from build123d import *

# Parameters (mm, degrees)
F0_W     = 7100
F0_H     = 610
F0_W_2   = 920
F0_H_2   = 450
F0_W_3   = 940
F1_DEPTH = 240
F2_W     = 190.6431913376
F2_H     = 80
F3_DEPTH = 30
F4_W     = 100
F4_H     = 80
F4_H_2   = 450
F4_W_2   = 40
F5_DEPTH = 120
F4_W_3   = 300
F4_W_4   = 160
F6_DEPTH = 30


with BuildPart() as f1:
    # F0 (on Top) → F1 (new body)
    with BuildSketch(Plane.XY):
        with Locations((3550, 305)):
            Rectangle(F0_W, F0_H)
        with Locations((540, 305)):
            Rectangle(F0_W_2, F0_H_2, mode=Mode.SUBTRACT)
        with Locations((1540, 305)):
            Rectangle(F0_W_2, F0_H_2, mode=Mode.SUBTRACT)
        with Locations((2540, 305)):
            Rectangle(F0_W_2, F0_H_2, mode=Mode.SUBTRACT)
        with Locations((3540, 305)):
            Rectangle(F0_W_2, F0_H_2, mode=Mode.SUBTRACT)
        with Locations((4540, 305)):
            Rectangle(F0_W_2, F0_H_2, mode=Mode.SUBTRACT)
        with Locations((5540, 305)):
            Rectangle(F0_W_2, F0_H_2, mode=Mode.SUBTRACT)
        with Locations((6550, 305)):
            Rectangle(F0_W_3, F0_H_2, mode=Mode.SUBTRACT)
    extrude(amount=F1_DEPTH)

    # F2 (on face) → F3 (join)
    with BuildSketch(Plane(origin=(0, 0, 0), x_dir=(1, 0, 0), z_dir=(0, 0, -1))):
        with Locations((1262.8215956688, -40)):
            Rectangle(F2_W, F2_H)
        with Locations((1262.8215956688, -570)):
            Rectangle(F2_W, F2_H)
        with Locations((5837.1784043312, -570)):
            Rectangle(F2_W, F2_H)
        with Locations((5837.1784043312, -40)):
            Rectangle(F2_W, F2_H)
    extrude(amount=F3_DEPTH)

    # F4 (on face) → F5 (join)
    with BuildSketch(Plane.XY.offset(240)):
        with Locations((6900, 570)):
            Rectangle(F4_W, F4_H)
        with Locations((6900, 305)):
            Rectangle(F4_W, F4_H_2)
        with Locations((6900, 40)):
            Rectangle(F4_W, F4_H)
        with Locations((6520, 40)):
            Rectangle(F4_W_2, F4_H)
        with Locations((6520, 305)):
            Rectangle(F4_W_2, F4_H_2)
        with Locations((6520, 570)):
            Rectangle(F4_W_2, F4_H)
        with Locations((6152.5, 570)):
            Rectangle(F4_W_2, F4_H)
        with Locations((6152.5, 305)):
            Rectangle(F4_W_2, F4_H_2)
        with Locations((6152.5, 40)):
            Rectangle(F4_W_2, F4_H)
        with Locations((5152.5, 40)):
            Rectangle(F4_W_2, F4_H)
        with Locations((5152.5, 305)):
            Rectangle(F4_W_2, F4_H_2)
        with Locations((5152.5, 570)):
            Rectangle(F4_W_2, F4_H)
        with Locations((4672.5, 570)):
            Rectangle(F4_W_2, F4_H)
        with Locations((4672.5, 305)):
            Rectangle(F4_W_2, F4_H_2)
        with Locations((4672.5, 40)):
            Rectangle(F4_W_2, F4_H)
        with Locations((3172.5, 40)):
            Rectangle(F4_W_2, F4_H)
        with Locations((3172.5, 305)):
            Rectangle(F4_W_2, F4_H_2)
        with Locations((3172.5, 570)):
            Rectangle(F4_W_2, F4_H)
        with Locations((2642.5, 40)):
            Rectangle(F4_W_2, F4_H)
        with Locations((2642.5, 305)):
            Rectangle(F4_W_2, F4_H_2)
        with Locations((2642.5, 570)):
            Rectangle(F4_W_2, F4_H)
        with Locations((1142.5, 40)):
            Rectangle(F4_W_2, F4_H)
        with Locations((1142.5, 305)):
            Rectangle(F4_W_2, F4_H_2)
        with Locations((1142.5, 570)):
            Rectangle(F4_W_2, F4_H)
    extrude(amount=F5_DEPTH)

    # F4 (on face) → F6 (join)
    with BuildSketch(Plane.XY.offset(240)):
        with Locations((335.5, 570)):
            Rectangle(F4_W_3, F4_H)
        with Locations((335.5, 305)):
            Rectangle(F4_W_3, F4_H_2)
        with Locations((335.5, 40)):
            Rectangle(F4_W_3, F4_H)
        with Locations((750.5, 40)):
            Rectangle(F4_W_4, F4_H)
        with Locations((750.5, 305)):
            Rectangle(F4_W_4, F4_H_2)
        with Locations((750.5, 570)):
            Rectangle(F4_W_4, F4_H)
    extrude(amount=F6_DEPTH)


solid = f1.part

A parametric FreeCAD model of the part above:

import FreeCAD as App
import Part
import Sketcher
from FreeCAD import Vector

doc = App.newDocument("Part")
body = doc.addObject("PartDesign::Body", "Body")

# Sketch on XY plane
sketch1 = body.newObject("Sketcher::SketchObject", "Sketch")
sketch1.AttachmentSupport = (doc.getObject("XY_Plane"), [""])
sketch1.MapMode = "FlatFace"
sketch1.addGeometry([
    Part.LineSegment(Vector(0, 610, 0), Vector(0, 0, 0)),  # 0
    Part.LineSegment(Vector(0, 0, 0), Vector(7100, 0, 0)),  # 1
    Part.LineSegment(Vector(7100, 0, 0), Vector(7100, 610, 0)),  # 2
    Part.LineSegment(Vector(7100, 610, 0), Vector(0, 610, 0)),  # 3
    Part.LineSegment(Vector(1000, 80, 0), Vector(80, 80, 0)),  # 4
    Part.LineSegment(Vector(80, 80, 0), Vector(80, 530, 0)),  # 5
    Part.LineSegment(Vector(80, 530, 0), Vector(1000, 530, 0)),  # 6
    Part.LineSegment(Vector(1000, 530, 0), Vector(1000, 80, 0)),  # 7
    Part.LineSegment(Vector(2000, 80, 0), Vector(1080, 80, 0)),  # 8
    Part.LineSegment(Vector(1080, 80, 0), Vector(1080, 530, 0)),  # 9
    Part.LineSegment(Vector(1080, 530, 0), Vector(2000, 530, 0)),  # 10
    Part.LineSegment(Vector(2000, 530, 0), Vector(2000, 80, 0)),  # 11
    Part.LineSegment(Vector(3000, 80, 0), Vector(2080, 80, 0)),  # 12
    Part.LineSegment(Vector(2080, 80, 0), Vector(2080, 530, 0)),  # 13
    Part.LineSegment(Vector(2080, 530, 0), Vector(3000, 530, 0)),  # 14
    Part.LineSegment(Vector(3000, 530, 0), Vector(3000, 80, 0)),  # 15
    Part.LineSegment(Vector(4000, 80, 0), Vector(3080, 80, 0)),  # 16
    Part.LineSegment(Vector(3080, 80, 0), Vector(3080, 530, 0)),  # 17
    Part.LineSegment(Vector(3080, 530, 0), Vector(4000, 530, 0)),  # 18
    Part.LineSegment(Vector(4000, 530, 0), Vector(4000, 80, 0)),  # 19
    Part.LineSegment(Vector(5000, 80, 0), Vector(4080, 80, 0)),  # 20
    Part.LineSegment(Vector(4080, 80, 0), Vector(4080, 530, 0)),  # 21
    Part.LineSegment(Vector(4080, 530, 0), Vector(5000, 530, 0)),  # 22
    Part.LineSegment(Vector(5000, 530, 0), Vector(5000, 80, 0)),  # 23
    Part.LineSegment(Vector(6000, 80, 0), Vector(5080, 80, 0)),  # 24
    Part.LineSegment(Vector(5080, 80, 0), Vector(5080, 530, 0)),  # 25
    Part.LineSegment(Vector(5080, 530, 0), Vector(6000, 530, 0)),  # 26
    Part.LineSegment(Vector(6000, 530, 0), Vector(6000, 80, 0)),  # 27
    Part.LineSegment(Vector(7020, 80, 0), Vector(6080, 80, 0)),  # 28
    Part.LineSegment(Vector(6080, 80, 0), Vector(6080, 530, 0)),  # 29
    Part.LineSegment(Vector(6080, 530, 0), Vector(7020, 530, 0)),  # 30
    Part.LineSegment(Vector(7020, 530, 0), Vector(7020, 80, 0)),  # 31
], False)
sketch1.addConstraint([
    Sketcher.Constraint("Coincident", 0, 2, 1, 1),
    Sketcher.Constraint("Coincident", 1, 2, 2, 1),
    Sketcher.Constraint("Coincident", 2, 2, 3, 1),
    Sketcher.Constraint("Coincident", 3, 2, 0, 1),
    Sketcher.Constraint("Coincident", 4, 2, 5, 1),
    Sketcher.Constraint("Coincident", 5, 2, 6, 1),
    Sketcher.Constraint("Coincident", 6, 2, 7, 1),
    Sketcher.Constraint("Coincident", 7, 2, 4, 1),
    Sketcher.Constraint("Coincident", 8, 2, 9, 1),
    Sketcher.Constraint("Coincident", 9, 2, 10, 1),
    Sketcher.Constraint("Coincident", 10, 2, 11, 1),
    Sketcher.Constraint("Coincident", 11, 2, 8, 1),
    Sketcher.Constraint("Coincident", 12, 2, 13, 1),
    Sketcher.Constraint("Coincident", 13, 2, 14, 1),
    Sketcher.Constraint("Coincident", 14, 2, 15, 1),
    Sketcher.Constraint("Coincident", 15, 2, 12, 1),
    Sketcher.Constraint("Coincident", 16, 2, 17, 1),
    Sketcher.Constraint("Coincident", 17, 2, 18, 1),
    Sketcher.Constraint("Coincident", 18, 2, 19, 1),
    Sketcher.Constraint("Coincident", 19, 2, 16, 1),
    Sketcher.Constraint("Coincident", 20, 2, 21, 1),
    Sketcher.Constraint("Coincident", 21, 2, 22, 1),
    Sketcher.Constraint("Coincident", 22, 2, 23, 1),
    Sketcher.Constraint("Coincident", 23, 2, 20, 1),
    Sketcher.Constraint("Coincident", 24, 2, 25, 1),
    Sketcher.Constraint("Coincident", 25, 2, 26, 1),
    Sketcher.Constraint("Coincident", 26, 2, 27, 1),
    Sketcher.Constraint("Coincident", 27, 2, 24, 1),
    Sketcher.Constraint("Coincident", 28, 2, 29, 1),
    Sketcher.Constraint("Coincident", 29, 2, 30, 1),
    Sketcher.Constraint("Coincident", 30, 2, 31, 1),
    Sketcher.Constraint("Coincident", 31, 2, 28, 1),
    Sketcher.Constraint("Vertical", 0),
    Sketcher.Constraint("Horizontal", 1),
    Sketcher.Constraint("Vertical", 2),
    Sketcher.Constraint("Horizontal", 3),
    Sketcher.Constraint("Horizontal", 4),
    Sketcher.Constraint("Vertical", 5),
    Sketcher.Constraint("Horizontal", 6),
    Sketcher.Constraint("Vertical", 7),
    Sketcher.Constraint("Horizontal", 8),
    Sketcher.Constraint("Vertical", 9),
    Sketcher.Constraint("Horizontal", 10),
    Sketcher.Constraint("Vertical", 11),
    Sketcher.Constraint("Horizontal", 12),
    Sketcher.Constraint("Vertical", 13),
    Sketcher.Constraint("Horizontal", 14),
    Sketcher.Constraint("Vertical", 15),
    Sketcher.Constraint("Horizontal", 16),
    Sketcher.Constraint("Vertical", 17),
    Sketcher.Constraint("Horizontal", 18),
    Sketcher.Constraint("Vertical", 19),
    Sketcher.Constraint("Horizontal", 20),
    Sketcher.Constraint("Vertical", 21),
    Sketcher.Constraint("Horizontal", 22),
    Sketcher.Constraint("Vertical", 23),
    Sketcher.Constraint("Horizontal", 24),
    Sketcher.Constraint("Vertical", 25),
    Sketcher.Constraint("Horizontal", 26),
    Sketcher.Constraint("Vertical", 27),
    Sketcher.Constraint("Horizontal", 28),
    Sketcher.Constraint("Vertical", 29),
    Sketcher.Constraint("Horizontal", 30),
    Sketcher.Constraint("Vertical", 31),
    Sketcher.Constraint("Coincident", 0, 2, -1, 1),
    Sketcher.Constraint("Horizontal", 7, 2, 8, 2),
    Sketcher.Constraint("Horizontal", 6, 2, 9, 2),
    Sketcher.Constraint("Horizontal", 11, 2, 12, 2),
    Sketcher.Constraint("Horizontal", 10, 2, 13, 2),
    Sketcher.Constraint("Horizontal", 15, 2, 16, 2),
    Sketcher.Constraint("Horizontal", 14, 2, 17, 2),
    Sketcher.Constraint("Horizontal", 19, 2, 20, 2),
    Sketcher.Constraint("Horizontal", 18, 2, 21, 2),
    Sketcher.Constraint("Horizontal", 23, 2, 24, 2),
    Sketcher.Constraint("Horizontal", 22, 2, 25, 2),
    Sketcher.Constraint("Horizontal", 27, 2, 28, 2),
    Sketcher.Constraint("Horizontal", 26, 2, 29, 2),
    Sketcher.Constraint("Equal", 6, 8),
    Sketcher.Constraint("Equal", 10, 12),
    Sketcher.Constraint("Equal", 14, 16),
    Sketcher.Constraint("Equal", 18, 20),
    Sketcher.Constraint("Equal", 22, 24),
    Sketcher.Constraint("DistanceX", 1, 1, 1, 2, 7100.0),
    Sketcher.Constraint("DistanceX", 4, 2, 4, 1, 920.0),
    Sketcher.Constraint("DistanceX", 28, 2, 28, 1, 940.0),
    Sketcher.Constraint("DistanceY", 0, 2, 0, 1, 610.0),
    Sketcher.Constraint("DistanceY", 5, 1, 5, 2, 450.0),
    Sketcher.Constraint("DistanceX", -1, 1, 4, 2, 80.0),
    Sketcher.Constraint("DistanceY", -1, 1, 4, 2, 80.0),
    Sketcher.Constraint("DistanceX", -1, 1, 8, 2, 1080.0),
    Sketcher.Constraint("DistanceX", -1, 1, 12, 2, 2080.0),
    Sketcher.Constraint("DistanceX", -1, 1, 16, 2, 3080.0),
    Sketcher.Constraint("DistanceX", -1, 1, 20, 2, 4080.0),
    Sketcher.Constraint("DistanceX", -1, 1, 24, 2, 5080.0),
    Sketcher.Constraint("DistanceX", -1, 1, 28, 2, 6080.0),
])
pad1 = body.newObject("PartDesign::Pad", "Pad")
pad1.Profile = sketch1
pad1.Length = 240

# Sketch on XY plane
sketch2 = body.newObject("Sketcher::SketchObject", "Sketch001")
sketch2.AttachmentSupport = (doc.getObject("XY_Plane"), [""])
sketch2.MapMode = "FlatFace"
sketch2.addGeometry([
    Part.LineSegment(Vector(1167.5, 0, 0), Vector(1167.5, 80, 0)),  # 0
    Part.LineSegment(Vector(1167.5, 80, 0), Vector(1358.143191, 80, 0)),  # 1
    Part.LineSegment(Vector(1358.143191, 80, 0), Vector(1358.143191, 0, 0)),  # 2
    Part.LineSegment(Vector(1358.143191, 0, 0), Vector(1167.5, 0, 0)),  # 3
    Part.LineSegment(Vector(1167.5, 530, 0), Vector(1167.5, 610, 0)),  # 4
    Part.LineSegment(Vector(1167.5, 610, 0), Vector(1358.143191, 610, 0)),  # 5
    Part.LineSegment(Vector(1358.143191, 610, 0), Vector(1358.143191, 530, 0)),  # 6
    Part.LineSegment(Vector(1358.143191, 530, 0), Vector(1167.5, 530, 0)),  # 7
    Part.LineSegment(Vector(5741.856809, 530, 0), Vector(5741.856809, 610, 0)),  # 8
    Part.LineSegment(Vector(5741.856809, 610, 0), Vector(5932.5, 610, 0)),  # 9
    Part.LineSegment(Vector(5932.5, 610, 0), Vector(5932.5, 530, 0)),  # 10
    Part.LineSegment(Vector(5932.5, 530, 0), Vector(5741.856809, 530, 0)),  # 11
    Part.LineSegment(Vector(5741.856809, 0, 0), Vector(5741.856809, 80, 0)),  # 12
    Part.LineSegment(Vector(5741.856809, 80, 0), Vector(5932.5, 80, 0)),  # 13
    Part.LineSegment(Vector(5932.5, 80, 0), Vector(5932.5, 0, 0)),  # 14
    Part.LineSegment(Vector(5932.5, 0, 0), Vector(5741.856809, 0, 0)),  # 15
], False)
sketch2.addConstraint([
    Sketcher.Constraint("Coincident", 0, 2, 1, 1),
    Sketcher.Constraint("Coincident", 1, 2, 2, 1),
    Sketcher.Constraint("Coincident", 2, 2, 3, 1),
    Sketcher.Constraint("Coincident", 3, 2, 0, 1),
    Sketcher.Constraint("Coincident", 4, 2, 5, 1),
    Sketcher.Constraint("Coincident", 5, 2, 6, 1),
    Sketcher.Constraint("Coincident", 6, 2, 7, 1),
    Sketcher.Constraint("Coincident", 7, 2, 4, 1),
    Sketcher.Constraint("Coincident", 8, 2, 9, 1),
    Sketcher.Constraint("Coincident", 9, 2, 10, 1),
    Sketcher.Constraint("Coincident", 10, 2, 11, 1),
    Sketcher.Constraint("Coincident", 11, 2, 8, 1),
    Sketcher.Constraint("Coincident", 12, 2, 13, 1),
    Sketcher.Constraint("Coincident", 13, 2, 14, 1),
    Sketcher.Constraint("Coincident", 14, 2, 15, 1),
    Sketcher.Constraint("Coincident", 15, 2, 12, 1),
    Sketcher.Constraint("Vertical", 0),
    Sketcher.Constraint("Horizontal", 1),
    Sketcher.Constraint("Vertical", 2),
    Sketcher.Constraint("Horizontal", 3),
    Sketcher.Constraint("Vertical", 4),
    Sketcher.Constraint("Horizontal", 5),
    Sketcher.Constraint("Vertical", 6),
    Sketcher.Constraint("Horizontal", 7),
    Sketcher.Constraint("Vertical", 8),
    Sketcher.Constraint("Horizontal", 9),
    Sketcher.Constraint("Vertical", 10),
    Sketcher.Constraint("Horizontal", 11),
    Sketcher.Constraint("Vertical", 12),
    Sketcher.Constraint("Horizontal", 13),
    Sketcher.Constraint("Vertical", 14),
    Sketcher.Constraint("Horizontal", 15),
    Sketcher.Constraint("PointOnObject", 2, 2, -1),
    Sketcher.Constraint("PointOnObject", 14, 2, -1),
    Sketcher.Constraint("Horizontal", 5, 2, 8, 2),
    Sketcher.Constraint("Horizontal", 7, 2, 10, 2),
    Sketcher.Constraint("Horizontal", 1, 2, 12, 2),
    Sketcher.Constraint("Vertical", 3, 2, 4, 2),
    Sketcher.Constraint("Vertical", 2, 2, 5, 2),
    Sketcher.Constraint("Vertical", 11, 2, 12, 2),
    Sketcher.Constraint("Vertical", 10, 2, 13, 2),
    Sketcher.Constraint("Equal", 7, 9),
    Sketcher.Constraint("Equal", 2, 4),
    Sketcher.Constraint("DistanceY", 0, 1, 0, 2, 80.0),
    Sketcher.Constraint("DistanceY", -1, 1, 4, 2, 610.0),
    Sketcher.Constraint("DistanceX", -1, 1, 0, 2, 1167.5),
    Sketcher.Constraint("DistanceX", -1, 1, 9, 2, 5932.5),
    Sketcher.Constraint("DistanceX", 1, 1, 1, 2, 190.643191),
])
pad2 = body.newObject("PartDesign::Pad", "Pad001")
pad2.Profile = sketch2
pad2.Length = 30
pad2.Reversed = True

# Sketch on XY plane
sketch3 = body.newObject("Sketcher::SketchObject", "Sketch002")
sketch3.AttachmentSupport = (doc.getObject("XY_Plane"), [""])
sketch3.MapMode = "FlatFace"
sketch3.AttachmentOffset = App.Placement(Vector(0, 0, 240), App.Rotation())
sketch3.addGeometry([
    Part.LineSegment(Vector(6850, 610, 0), Vector(6850, 0, 0)),  # 0
    Part.LineSegment(Vector(6850, 0, 0), Vector(6950, 0, 0)),  # 1
    Part.LineSegment(Vector(6950, 0, 0), Vector(6950, 610, 0)),  # 2
    Part.LineSegment(Vector(6950, 610, 0), Vector(6850, 610, 0)),  # 3
    Part.LineSegment(Vector(6500, 0, 0), Vector(6540, 0, 0)),  # 4
    Part.LineSegment(Vector(6540, 0, 0), Vector(6540, 610, 0)),  # 5
    Part.LineSegment(Vector(6540, 610, 0), Vector(6500, 610, 0)),  # 6
    Part.LineSegment(Vector(6500, 610, 0), Vector(6500, 0, 0)),  # 7
    Part.LineSegment(Vector(6132.5, 610, 0), Vector(6132.5, 0, 0)),  # 8
    Part.LineSegment(Vector(6132.5, 0, 0), Vector(6172.5, 0, 0)),  # 9
    Part.LineSegment(Vector(6172.5, 0, 0), Vector(6172.5, 610, 0)),  # 10
    Part.LineSegment(Vector(6172.5, 610, 0), Vector(6132.5, 610, 0)),  # 11
    Part.LineSegment(Vector(5132.5, 0, 0), Vector(5172.5, 0, 0)),  # 12
    Part.LineSegment(Vector(5172.5, 0, 0), Vector(5172.5, 610, 0)),  # 13
    Part.LineSegment(Vector(5172.5, 610, 0), Vector(5132.5, 610, 0)),  # 14
    Part.LineSegment(Vector(5132.5, 610, 0), Vector(5132.5, 0, 0)),  # 15
    Part.LineSegment(Vector(4652.5, 610, 0), Vector(4652.5, 0, 0)),  # 16
    Part.LineSegment(Vector(4652.5, 0, 0), Vector(4692.5, 0, 0)),  # 17
    Part.LineSegment(Vector(4692.5, 0, 0), Vector(4692.5, 610, 0)),  # 18
    Part.LineSegment(Vector(4692.5, 610, 0), Vector(4652.5, 610, 0)),  # 19
    Part.LineSegment(Vector(3152.5, 0, 0), Vector(3192.5, 0, 0)),  # 20
    Part.LineSegment(Vector(3192.5, 0, 0), Vector(3192.5, 610, 0)),  # 21
    Part.LineSegment(Vector(3192.5, 610, 0), Vector(3152.5, 610, 0)),  # 22
    Part.LineSegment(Vector(3152.5, 610, 0), Vector(3152.5, 0, 0)),  # 23
    Part.LineSegment(Vector(2622.5, 0, 0), Vector(2662.5, 0, 0)),  # 24
    Part.LineSegment(Vector(2662.5, 0, 0), Vector(2662.5, 610, 0)),  # 25
    Part.LineSegment(Vector(2662.5, 610, 0), Vector(2622.5, 610, 0)),  # 26
    Part.LineSegment(Vector(2622.5, 610, 0), Vector(2622.5, 0, 0)),  # 27
    Part.LineSegment(Vector(1122.5, 0, 0), Vector(1162.5, 0, 0)),  # 28
    Part.LineSegment(Vector(1162.5, 0, 0), Vector(1162.5, 610, 0)),  # 29
    Part.LineSegment(Vector(1162.5, 610, 0), Vector(1122.5, 610, 0)),  # 30
    Part.LineSegment(Vector(1122.5, 610, 0), Vector(1122.5, 0, 0)),  # 31
], False)
sketch3.addConstraint([
    Sketcher.Constraint("Coincident", 0, 2, 1, 1),
    Sketcher.Constraint("Coincident", 1, 2, 2, 1),
    Sketcher.Constraint("Coincident", 2, 2, 3, 1),
    Sketcher.Constraint("Coincident", 3, 2, 0, 1),
    Sketcher.Constraint("Coincident", 4, 2, 5, 1),
    Sketcher.Constraint("Coincident", 5, 2, 6, 1),
    Sketcher.Constraint("Coincident", 6, 2, 7, 1),
    Sketcher.Constraint("Coincident", 7, 2, 4, 1),
    Sketcher.Constraint("Coincident", 8, 2, 9, 1),
    Sketcher.Constraint("Coincident", 9, 2, 10, 1),
    Sketcher.Constraint("Coincident", 10, 2, 11, 1),
    Sketcher.Constraint("Coincident", 11, 2, 8, 1),
    Sketcher.Constraint("Coincident", 12, 2, 13, 1),
    Sketcher.Constraint("Coincident", 13, 2, 14, 1),
    Sketcher.Constraint("Coincident", 14, 2, 15, 1),
    Sketcher.Constraint("Coincident", 15, 2, 12, 1),
    Sketcher.Constraint("Coincident", 16, 2, 17, 1),
    Sketcher.Constraint("Coincident", 17, 2, 18, 1),
    Sketcher.Constraint("Coincident", 18, 2, 19, 1),
    Sketcher.Constraint("Coincident", 19, 2, 16, 1),
    Sketcher.Constraint("Coincident", 20, 2, 21, 1),
    Sketcher.Constraint("Coincident", 21, 2, 22, 1),
    Sketcher.Constraint("Coincident", 22, 2, 23, 1),
    Sketcher.Constraint("Coincident", 23, 2, 20, 1),
    Sketcher.Constraint("Coincident", 24, 2, 25, 1),
    Sketcher.Constraint("Coincident", 25, 2, 26, 1),
    Sketcher.Constraint("Coincident", 26, 2, 27, 1),
    Sketcher.Constraint("Coincident", 27, 2, 24, 1),
    Sketcher.Constraint("Coincident", 28, 2, 29, 1),
    Sketcher.Constraint("Coincident", 29, 2, 30, 1),
    Sketcher.Constraint("Coincident", 30, 2, 31, 1),
    Sketcher.Constraint("Coincident", 31, 2, 28, 1),
    Sketcher.Constraint("Vertical", 0),
    Sketcher.Constraint("Horizontal", 1),
    Sketcher.Constraint("Vertical", 2),
    Sketcher.Constraint("Horizontal", 3),
    Sketcher.Constraint("Horizontal", 4),
    Sketcher.Constraint("Vertical", 5),
    Sketcher.Constraint("Horizontal", 6),
    Sketcher.Constraint("Vertical", 7),
    Sketcher.Constraint("Vertical", 8),
    Sketcher.Constraint("Horizontal", 9),
    Sketcher.Constraint("Vertical", 10),
    Sketcher.Constraint("Horizontal", 11),
    Sketcher.Constraint("Horizontal", 12),
    Sketcher.Constraint("Vertical", 13),
    Sketcher.Constraint("Horizontal", 14),
    Sketcher.Constraint("Vertical", 15),
    Sketcher.Constraint("Vertical", 16),
    Sketcher.Constraint("Horizontal", 17),
    Sketcher.Constraint("Vertical", 18),
    Sketcher.Constraint("Horizontal", 19),
    Sketcher.Constraint("Horizontal", 20),
    Sketcher.Constraint("Vertical", 21),
    Sketcher.Constraint("Horizontal", 22),
    Sketcher.Constraint("Vertical", 23),
    Sketcher.Constraint("Horizontal", 24),
    Sketcher.Constraint("Vertical", 25),
    Sketcher.Constraint("Horizontal", 26),
    Sketcher.Constraint("Vertical", 27),
    Sketcher.Constraint("Horizontal", 28),
    Sketcher.Constraint("Vertical", 29),
    Sketcher.Constraint("Horizontal", 30),
    Sketcher.Constraint("Vertical", 31),
    Sketcher.Constraint("PointOnObject", 0, 2, -1),
    Sketcher.Constraint("PointOnObject", 4, 2, -1),
    Sketcher.Constraint("PointOnObject", 8, 2, -1),
    Sketcher.Constraint("PointOnObject", 12, 2, -1),
    Sketcher.Constraint("PointOnObject", 16, 2, -1),
    Sketcher.Constraint("PointOnObject", 20, 2, -1),
    Sketcher.Constraint("PointOnObject", 24, 2, -1),
    Sketcher.Constraint("PointOnObject", 28, 2, -1),
    Sketcher.Constraint("Horizontal", 3, 2, 5, 2),
    Sketcher.Constraint("Horizontal", 6, 2, 10, 2),
    Sketcher.Constraint("Horizontal", 11, 2, 13, 2),
    Sketcher.Constraint("Horizontal", 14, 2, 18, 2),
    Sketcher.Constraint("Horizontal", 19, 2, 21, 2),
    Sketcher.Constraint("Horizontal", 22, 2, 25, 2),
    Sketcher.Constraint("Horizontal", 26, 2, 29, 2),
    Sketcher.Constraint("Equal", 6, 9),
    Sketcher.Constraint("Equal", 11, 12),
    Sketcher.Constraint("Equal", 14, 17),
    Sketcher.Constraint("Equal", 19, 20),
    Sketcher.Constraint("Equal", 22, 24),
    Sketcher.Constraint("Equal", 26, 28),
    Sketcher.Constraint("DistanceX", 1, 1, 1, 2, 100.0),
    Sketcher.Constraint("DistanceX", 4, 1, 4, 2, 40.0),
    Sketcher.Constraint("DistanceY", 0, 2, 0, 1, 610.0),
    Sketcher.Constraint("DistanceX", -1, 1, 0, 2, 6850.0),
    Sketcher.Constraint("DistanceX", -1, 1, 4, 2, 6540.0),
    Sketcher.Constraint("DistanceX", 12, 2, 8, 2, 960.0),
    Sketcher.Constraint("DistanceX", 16, 2, 15, 2, 480.0),
    Sketcher.Constraint("DistanceX", 20, 2, 16, 2, 1460.0),
    Sketcher.Constraint("DistanceX", 24, 2, 23, 2, 490.0),
    Sketcher.Constraint("DistanceX", 28, 2, 27, 2, 1460.0),
    Sketcher.Constraint("DistanceX", -1, 1, 8, 2, 6132.5),
])
pad3 = body.newObject("PartDesign::Pad", "Pad002")
pad3.Profile = sketch3
pad3.Length = 120

# Sketch on XY plane
sketch4 = body.newObject("Sketcher::SketchObject", "Sketch003")
sketch4.AttachmentSupport = (doc.getObject("XY_Plane"), [""])
sketch4.MapMode = "FlatFace"
sketch4.AttachmentOffset = App.Placement(Vector(0, 0, 240), App.Rotation())
sketch4.addGeometry([
    Part.LineSegment(Vector(185.5, 610, 0), Vector(185.5, 0, 0)),  # 0
    Part.LineSegment(Vector(185.5, 0, 0), Vector(485.5, 0, 0)),  # 1
    Part.LineSegment(Vector(485.5, 0, 0), Vector(485.5, 610, 0)),  # 2
    Part.LineSegment(Vector(485.5, 610, 0), Vector(185.5, 610, 0)),  # 3
    Part.LineSegment(Vector(670.5, 0, 0), Vector(830.5, 0, 0)),  # 4
    Part.LineSegment(Vector(830.5, 0, 0), Vector(830.5, 610, 0)),  # 5
    Part.LineSegment(Vector(830.5, 610, 0), Vector(670.5, 610, 0)),  # 6
    Part.LineSegment(Vector(670.5, 610, 0), Vector(670.5, 0, 0)),  # 7
], False)
sketch4.addConstraint([
    Sketcher.Constraint("Coincident", 0, 2, 1, 1),
    Sketcher.Constraint("Coincident", 1, 2, 2, 1),
    Sketcher.Constraint("Coincident", 2, 2, 3, 1),
    Sketcher.Constraint("Coincident", 3, 2, 0, 1),
    Sketcher.Constraint("Coincident", 4, 2, 5, 1),
    Sketcher.Constraint("Coincident", 5, 2, 6, 1),
    Sketcher.Constraint("Coincident", 6, 2, 7, 1),
    Sketcher.Constraint("Coincident", 7, 2, 4, 1),
    Sketcher.Constraint("Vertical", 0),
    Sketcher.Constraint("Horizontal", 1),
    Sketcher.Constraint("Vertical", 2),
    Sketcher.Constraint("Horizontal", 3),
    Sketcher.Constraint("Horizontal", 4),
    Sketcher.Constraint("Vertical", 5),
    Sketcher.Constraint("Horizontal", 6),
    Sketcher.Constraint("Vertical", 7),
    Sketcher.Constraint("PointOnObject", 0, 2, -1),
    Sketcher.Constraint("PointOnObject", 4, 2, -1),
    Sketcher.Constraint("Horizontal", 3, 2, 5, 2),
    Sketcher.Constraint("DistanceX", 1, 1, 1, 2, 300.0),
    Sketcher.Constraint("DistanceX", 4, 1, 4, 2, 160.0),
    Sketcher.Constraint("DistanceY", 0, 2, 0, 1, 610.0),
    Sketcher.Constraint("DistanceX", 1, 2, 4, 2, 345.0),
    Sketcher.Constraint("DistanceX", -1, 1, 0, 2, 185.5),
])
pad4 = body.newObject("PartDesign::Pad", "Pad003")
pad4.Profile = sketch4
pad4.Length = 30

doc.recompute()
